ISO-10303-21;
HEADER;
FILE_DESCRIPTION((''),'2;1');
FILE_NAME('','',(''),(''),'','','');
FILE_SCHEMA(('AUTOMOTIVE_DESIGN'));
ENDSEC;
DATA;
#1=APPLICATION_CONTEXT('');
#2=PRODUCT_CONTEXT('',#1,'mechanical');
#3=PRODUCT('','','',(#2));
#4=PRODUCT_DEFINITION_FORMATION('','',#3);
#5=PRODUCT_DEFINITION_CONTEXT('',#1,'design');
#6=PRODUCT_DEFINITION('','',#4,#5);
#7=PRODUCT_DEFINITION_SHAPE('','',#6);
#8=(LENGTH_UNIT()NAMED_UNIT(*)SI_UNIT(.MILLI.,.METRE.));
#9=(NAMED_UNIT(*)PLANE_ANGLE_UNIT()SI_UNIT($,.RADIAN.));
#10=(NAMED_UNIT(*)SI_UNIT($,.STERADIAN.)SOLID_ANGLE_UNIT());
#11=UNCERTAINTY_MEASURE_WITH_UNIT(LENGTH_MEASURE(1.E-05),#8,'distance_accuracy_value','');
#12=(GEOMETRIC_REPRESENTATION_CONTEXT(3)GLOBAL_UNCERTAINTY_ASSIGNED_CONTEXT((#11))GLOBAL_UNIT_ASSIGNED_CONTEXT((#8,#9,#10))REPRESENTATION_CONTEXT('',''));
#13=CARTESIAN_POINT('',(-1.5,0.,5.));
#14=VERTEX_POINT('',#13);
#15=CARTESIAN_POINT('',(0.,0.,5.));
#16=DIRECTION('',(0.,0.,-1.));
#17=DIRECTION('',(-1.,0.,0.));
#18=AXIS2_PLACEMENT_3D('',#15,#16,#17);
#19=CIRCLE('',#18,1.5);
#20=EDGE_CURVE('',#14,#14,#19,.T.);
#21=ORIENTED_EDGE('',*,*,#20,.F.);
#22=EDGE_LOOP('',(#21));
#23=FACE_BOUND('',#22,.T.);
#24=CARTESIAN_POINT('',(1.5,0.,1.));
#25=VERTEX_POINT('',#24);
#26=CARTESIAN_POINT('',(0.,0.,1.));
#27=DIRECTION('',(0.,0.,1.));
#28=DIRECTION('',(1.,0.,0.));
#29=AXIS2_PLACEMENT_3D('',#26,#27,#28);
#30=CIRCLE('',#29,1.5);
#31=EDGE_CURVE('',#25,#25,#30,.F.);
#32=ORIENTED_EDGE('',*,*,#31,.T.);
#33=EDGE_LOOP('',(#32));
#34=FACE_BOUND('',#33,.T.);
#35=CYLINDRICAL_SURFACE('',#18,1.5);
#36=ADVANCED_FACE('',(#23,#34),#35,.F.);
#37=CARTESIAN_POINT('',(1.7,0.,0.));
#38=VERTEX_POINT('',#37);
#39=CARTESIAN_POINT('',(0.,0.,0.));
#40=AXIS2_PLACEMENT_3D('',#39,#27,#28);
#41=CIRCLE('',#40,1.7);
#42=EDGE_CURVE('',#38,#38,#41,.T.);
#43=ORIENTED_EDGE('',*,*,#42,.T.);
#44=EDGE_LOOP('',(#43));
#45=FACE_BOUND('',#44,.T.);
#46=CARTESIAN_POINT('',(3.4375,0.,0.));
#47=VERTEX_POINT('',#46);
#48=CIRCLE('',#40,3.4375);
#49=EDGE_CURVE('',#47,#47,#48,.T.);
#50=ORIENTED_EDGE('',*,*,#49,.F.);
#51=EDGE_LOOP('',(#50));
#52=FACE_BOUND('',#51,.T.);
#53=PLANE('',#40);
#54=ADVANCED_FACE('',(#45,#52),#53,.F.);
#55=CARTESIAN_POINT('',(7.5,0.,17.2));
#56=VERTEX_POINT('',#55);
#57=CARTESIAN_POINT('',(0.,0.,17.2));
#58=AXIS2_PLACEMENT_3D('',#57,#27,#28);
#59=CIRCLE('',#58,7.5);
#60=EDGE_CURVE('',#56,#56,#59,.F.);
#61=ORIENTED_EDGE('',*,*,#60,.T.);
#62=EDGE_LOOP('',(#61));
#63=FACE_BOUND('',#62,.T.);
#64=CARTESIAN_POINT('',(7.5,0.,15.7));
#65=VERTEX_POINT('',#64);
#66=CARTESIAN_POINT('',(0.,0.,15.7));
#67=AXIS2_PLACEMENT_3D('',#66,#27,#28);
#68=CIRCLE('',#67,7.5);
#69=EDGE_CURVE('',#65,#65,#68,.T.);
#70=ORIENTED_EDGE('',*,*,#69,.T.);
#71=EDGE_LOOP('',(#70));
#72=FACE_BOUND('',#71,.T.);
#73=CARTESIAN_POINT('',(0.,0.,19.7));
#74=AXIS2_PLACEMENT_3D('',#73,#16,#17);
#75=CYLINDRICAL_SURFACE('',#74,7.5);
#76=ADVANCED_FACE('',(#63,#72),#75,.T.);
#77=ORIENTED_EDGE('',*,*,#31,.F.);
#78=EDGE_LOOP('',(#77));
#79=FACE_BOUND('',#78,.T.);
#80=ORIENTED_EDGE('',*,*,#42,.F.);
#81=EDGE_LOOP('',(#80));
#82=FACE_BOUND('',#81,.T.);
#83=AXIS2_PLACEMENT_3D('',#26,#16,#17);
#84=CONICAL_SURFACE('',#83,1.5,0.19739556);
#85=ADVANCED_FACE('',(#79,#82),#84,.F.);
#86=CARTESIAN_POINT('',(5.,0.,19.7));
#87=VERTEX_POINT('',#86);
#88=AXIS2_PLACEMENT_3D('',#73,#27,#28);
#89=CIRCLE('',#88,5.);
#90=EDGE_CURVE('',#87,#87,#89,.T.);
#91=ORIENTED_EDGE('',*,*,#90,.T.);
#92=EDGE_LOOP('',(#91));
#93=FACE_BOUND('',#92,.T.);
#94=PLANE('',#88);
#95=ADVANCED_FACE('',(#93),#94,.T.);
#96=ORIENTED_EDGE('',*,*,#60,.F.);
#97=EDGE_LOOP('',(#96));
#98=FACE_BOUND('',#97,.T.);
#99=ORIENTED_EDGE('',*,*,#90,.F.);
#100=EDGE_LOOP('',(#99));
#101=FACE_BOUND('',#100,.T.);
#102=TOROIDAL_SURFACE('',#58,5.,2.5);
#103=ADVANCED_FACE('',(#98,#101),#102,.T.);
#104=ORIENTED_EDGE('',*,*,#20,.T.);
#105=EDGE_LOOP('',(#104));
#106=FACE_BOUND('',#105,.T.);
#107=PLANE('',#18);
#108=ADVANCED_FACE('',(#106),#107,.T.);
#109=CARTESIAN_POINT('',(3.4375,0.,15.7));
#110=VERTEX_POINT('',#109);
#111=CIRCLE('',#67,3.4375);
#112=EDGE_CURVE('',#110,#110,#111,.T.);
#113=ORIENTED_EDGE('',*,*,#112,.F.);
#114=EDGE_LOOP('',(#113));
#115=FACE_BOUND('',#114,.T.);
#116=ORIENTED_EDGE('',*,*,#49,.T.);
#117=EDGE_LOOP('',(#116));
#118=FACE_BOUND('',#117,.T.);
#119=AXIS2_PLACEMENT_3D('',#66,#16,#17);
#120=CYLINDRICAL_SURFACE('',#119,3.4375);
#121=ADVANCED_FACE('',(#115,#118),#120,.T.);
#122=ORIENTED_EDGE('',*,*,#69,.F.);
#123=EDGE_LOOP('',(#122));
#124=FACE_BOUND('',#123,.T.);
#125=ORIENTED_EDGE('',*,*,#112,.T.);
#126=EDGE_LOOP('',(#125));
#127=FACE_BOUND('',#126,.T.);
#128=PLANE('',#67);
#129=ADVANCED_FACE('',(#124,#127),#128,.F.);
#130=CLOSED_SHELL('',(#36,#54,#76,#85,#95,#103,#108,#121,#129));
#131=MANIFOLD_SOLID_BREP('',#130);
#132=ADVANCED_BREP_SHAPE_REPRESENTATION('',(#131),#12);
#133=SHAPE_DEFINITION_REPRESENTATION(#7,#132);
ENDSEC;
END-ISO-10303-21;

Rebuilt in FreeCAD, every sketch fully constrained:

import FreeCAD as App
import Part
import Sketcher
from FreeCAD import Vector
Q = App.Units.Quantity


def edges_at(feature, points):
    """Names of the edges that pass closest to the given points."""
    edges = feature.Shape.Edges
    near = lambda p: min(range(len(edges)), key=lambda i: edges[i].distToShape(Part.Vertex(*p))[0])
    return sorted({f"Edge{near(p) + 1}" for p in points})

doc = App.newDocument("Part")
body = doc.addObject("PartDesign::Body", "Body")

# Sketch on XY plane
sketch1 = body.newObject("Sketcher::SketchObject", "Sketch")
sketch1.AttachmentSupport = (doc.getObject("XY_Plane"), [""])
sketch1.MapMode = "FlatFace"
sketch1.addGeometry(Part.Circle(Vector(0, 0, 0), Vector(0, 0, 1), 3.4), False)
sketch1.addConstraint([
    Sketcher.Constraint("Coincident", 0, 3, -1, 1),
    Sketcher.Constraint("Diameter", 0, Q("6.875 mm")),
])
pad1 = body.newObject("PartDesign::Pad", "Pad")
pad1.Profile = sketch1
pad1.Length = 15.7

# Sketch on XY plane
sketch2 = body.newObject("Sketcher::SketchObject", "Sketch001")
sketch2.AttachmentSupport = (doc.getObject("XY_Plane"), [""])
sketch2.MapMode = "FlatFace"
sketch2.AttachmentOffset = App.Placement(Vector(0, 0, 15.7), App.Rotation())
sketch2.addGeometry(Part.Circle(Vector(0, 0, 0), Vector(0, 0, 1), 8), False)
sketch2.addConstraint([
    Sketcher.Constraint("Coincident", 0, 3, -1, 1),
    Sketcher.Constraint("Diameter", 0, Q("15 mm")),
])
pad2 = body.newObject("PartDesign::Pad", "Pad001")
pad2.Profile = sketch2
pad2.Length = 4

# Sketch on XY plane
sketch3 = body.newObject("Sketcher::SketchObject", "Sketch002")
sketch3.AttachmentSupport = (doc.getObject("XY_Plane"), [""])
sketch3.MapMode = "FlatFace"
sketch3.addGeometry(Part.Circle(Vector(0, 0, 0), Vector(0, 0, 1), 1.5), False)
sketch3.addConstraint([
    Sketcher.Constraint("Coincident", 0, 3, -1, 1),
    Sketcher.Constraint("Diameter", 0, Q("3 mm")),
])
pocket1 = body.newObject("PartDesign::Pocket", "Pocket")
pocket1.Profile = sketch3
pocket1.Length = 5
pocket1.Reversed = True
doc.recompute()

chamfer = body.newObject("PartDesign::Chamfer", "Chamfer")
chamfer.Base = (pocket1, edges_at(pocket1, [(1.5, 0, 0)]))
chamfer.ChamferType = "Two distances"
chamfer.Size = 0.2
chamfer.Size2 = 1
doc.recompute()

fillet = body.newObject("PartDesign::Fillet", "Fillet")
fillet.Base = (chamfer, edges_at(chamfer, [(-7.5, 0, 19.7)]))
fillet.Radius = 2.5

doc.recompute()
